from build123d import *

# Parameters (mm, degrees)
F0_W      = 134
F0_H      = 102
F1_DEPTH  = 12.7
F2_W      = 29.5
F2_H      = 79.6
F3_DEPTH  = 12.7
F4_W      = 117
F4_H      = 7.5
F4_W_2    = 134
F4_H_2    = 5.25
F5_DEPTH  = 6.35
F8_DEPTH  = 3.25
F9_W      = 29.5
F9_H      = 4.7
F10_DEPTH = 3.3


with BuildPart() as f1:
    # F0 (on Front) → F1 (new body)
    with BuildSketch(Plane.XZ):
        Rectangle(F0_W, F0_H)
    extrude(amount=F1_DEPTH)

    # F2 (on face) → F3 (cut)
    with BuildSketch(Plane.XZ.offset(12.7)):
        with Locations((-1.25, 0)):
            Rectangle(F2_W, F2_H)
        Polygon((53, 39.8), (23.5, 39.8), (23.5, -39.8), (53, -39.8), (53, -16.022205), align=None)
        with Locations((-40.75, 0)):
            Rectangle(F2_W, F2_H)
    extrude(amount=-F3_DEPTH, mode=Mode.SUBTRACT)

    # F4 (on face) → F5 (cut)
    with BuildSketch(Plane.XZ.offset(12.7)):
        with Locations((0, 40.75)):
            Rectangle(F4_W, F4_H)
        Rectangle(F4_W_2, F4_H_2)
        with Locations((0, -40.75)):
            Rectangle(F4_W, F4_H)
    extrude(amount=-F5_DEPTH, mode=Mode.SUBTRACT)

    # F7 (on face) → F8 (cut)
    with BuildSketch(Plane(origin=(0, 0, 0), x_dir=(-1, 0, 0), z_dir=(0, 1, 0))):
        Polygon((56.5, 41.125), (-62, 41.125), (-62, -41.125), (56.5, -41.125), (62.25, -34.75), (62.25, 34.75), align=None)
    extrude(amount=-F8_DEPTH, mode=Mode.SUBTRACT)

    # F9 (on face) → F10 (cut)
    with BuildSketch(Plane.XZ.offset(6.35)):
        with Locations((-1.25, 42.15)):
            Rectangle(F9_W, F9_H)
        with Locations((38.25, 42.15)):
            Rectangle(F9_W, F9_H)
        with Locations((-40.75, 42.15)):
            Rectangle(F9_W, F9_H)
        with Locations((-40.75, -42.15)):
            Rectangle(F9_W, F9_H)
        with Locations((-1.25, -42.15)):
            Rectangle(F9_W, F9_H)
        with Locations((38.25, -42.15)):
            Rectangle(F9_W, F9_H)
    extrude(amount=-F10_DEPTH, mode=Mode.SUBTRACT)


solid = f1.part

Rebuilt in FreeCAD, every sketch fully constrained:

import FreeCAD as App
import Part
import Sketcher
from FreeCAD import Vector
Q = App.Units.Quantity

doc = App.newDocument("Part")
body = doc.addObject("PartDesign::Body", "Body")

# Sketch on XZ plane
sketch1 = doc.addObject("Sketcher::SketchObject", "Sketch")
body.addObject(sketch1)
sketch1.AttachmentSupport = (doc.XZ_Plane, [""])
sketch1.MapMode = "FlatFace"
sketch1.addGeometry([
    Part.LineSegment(Vector(-67, 51, 0), Vector(-67, -51, 0)),
    Part.LineSegment(Vector(-67, -51, 0), Vector(67, -51, 0)),
    Part.LineSegment(Vector(67, -51, 0), Vector(67, 51, 0)),
    Part.LineSegment(Vector(67, 51, 0), Vector(-67, 51, 0)),
], False)
sketch1.addConstraint([
    Sketcher.Constraint("Coincident", 0, 2, 1, 1),
    Sketcher.Constraint("Coincident", 1, 2, 2, 1),
    Sketcher.Constraint("Coincident", 2, 2, 3, 1),
    Sketcher.Constraint("Coincident", 3, 2, 0, 1),
    Sketcher.Constraint("Vertical", 0),
    Sketcher.Constraint("Horizontal", 1),
    Sketcher.Constraint("Vertical", 2),
    Sketcher.Constraint("Horizontal", 3),
    Sketcher.Constraint("Symmetric", 0, 2, 2, 2, -1, 1),
    Sketcher.Constraint("DistanceX", 1, 1, 1, 2, Q("134 mm")),
    Sketcher.Constraint("DistanceY", 0, 2, 0, 1, Q("102 mm")),
])
pad1 = doc.addObject("PartDesign::Pad", "Pad")
body.addObject(pad1)
pad1.Profile = sketch1
pad1.Length = 12.7

# Sketch on XZ plane
sketch2 = doc.addObject("Sketcher::SketchObject", "Sketch001")
body.addObject(sketch2)
sketch2.AttachmentSupport = (doc.XZ_Plane, [""])
sketch2.MapMode = "FlatFace"
sketch2.AttachmentOffset = App.Placement(Vector(0, 0, 12.7), App.Rotation())
sketch2.addGeometry([
    Part.LineSegment(Vector(-16, 40, 0), Vector(-16, -40, 0)),  # 0
    Part.LineSegment(Vector(-16, -40, 0), Vector(14, -40, 0)),  # 1
    Part.LineSegment(Vector(14, -40, 0), Vector(14, 40, 0)),  # 2
    Part.LineSegment(Vector(14, 40, 0), Vector(-16, 40, 0)),  # 3
    Part.LineSegment(Vector(53, 40, 0), Vector(24, 40, 0)),  # 4
    Part.LineSegment(Vector(24, 40, 0), Vector(24, -40, 0)),  # 5
    Part.LineSegment(Vector(24, -40, 0), Vector(53, -40, 0)),  # 6
    Part.LineSegment(Vector(53, -40, 0), Vector(53, 40, 0)),  # 7
    Part.LineSegment(Vector(-56, 40, 0), Vector(-56, -40, 0)),  # 8
    Part.LineSegment(Vector(-56, -40, 0), Vector(-26, -40, 0)),  # 9
    Part.LineSegment(Vector(-26, -40, 0), Vector(-26, 40, 0)),  # 10
    Part.LineSegment(Vector(-26, 40, 0), Vector(-56, 40, 0)),  # 11
], False)
sketch2.addConstraint([
    Sketcher.Constraint("Coincident", 0, 2, 1, 1),
    Sketcher.Constraint("Coincident", 1, 2, 2, 1),
    Sketcher.Constraint("Coincident", 2, 2, 3, 1),
    Sketcher.Constraint("Coincident", 3, 2, 0, 1),
    Sketcher.Constraint("Coincident", 4, 2, 5, 1),
    Sketcher.Constraint("Coincident", 5, 2, 6, 1),
    Sketcher.Constraint("Coincident", 6, 2, 7, 1),
    Sketcher.Constraint("Coincident", 7, 2, 4, 1),
    Sketcher.Constraint("Coincident", 8, 2, 9, 1),
    Sketcher.Constraint("Coincident", 9, 2, 10, 1),
    Sketcher.Constraint("Coincident", 10, 2, 11, 1),
    Sketcher.Constraint("Coincident", 11, 2, 8, 1),
    Sketcher.Constraint("Vertical", 0),
    Sketcher.Constraint("Horizontal", 1),
    Sketcher.Constraint("Vertical", 2),
    Sketcher.Constraint("Horizontal", 3),
    Sketcher.Constraint("Horizontal", 4),
    Sketcher.Constraint("Vertical", 5),
    Sketcher.Constraint("Horizontal", 6),
    Sketcher.Constraint("Vertical", 7),
    Sketcher.Constraint("Vertical", 8),
    Sketcher.Constraint("Horizontal", 9),
    Sketcher.Constraint("Vertical", 10),
    Sketcher.Constraint("Horizontal", 11),
    Sketcher.Constraint("Horizontal", 3, 2, 4, 2),
    Sketcher.Constraint("Horizontal", 1, 2, 5, 2),
    Sketcher.Constraint("Horizontal", 6, 2, 8, 2),
    Sketcher.Constraint("Horizontal", 7, 2, 10, 2),
    Sketcher.Constraint("Equal", 3, 4),
    Sketcher.Constraint("Equal", 6, 9),
    Sketcher.Constraint("DistanceX", 1, 1, 1, 2, Q("29.5 mm")),
    Sketcher.Constraint("DistanceY", 0, 2, 0, 1, Q("79.6 mm")),
    Sketcher.Constraint("DistanceX", 0, 2, -1, 1, Q("16 mm")),
    Sketcher.Constraint("DistanceX", -1, 1, 6, 2, Q("53 mm")),
    Sketcher.Constraint("DistanceX", 9, 2, -1, 1, Q("26 mm")),
    Sketcher.Constraint("DistanceY", 0, 2, -1, 1, Q("39.8 mm")),
])
pocket1 = doc.addObject("PartDesign::Pocket", "Pocket")
body.addObject(pocket1)
pocket1.Profile = sketch2
pocket1.Length = 12.7

# Sketch on XZ plane
sketch3 = doc.addObject("Sketcher::SketchObject", "Sketch002")
body.addObject(sketch3)
sketch3.AttachmentSupport = (doc.XZ_Plane, [""])
sketch3.MapMode = "FlatFace"
sketch3.AttachmentOffset = App.Placement(Vector(0, 0, 12.7), App.Rotation())
sketch3.addGeometry([
    Part.LineSegment(Vector(-58, 44, 0), Vector(-58, 37, 0)),  # 0
    Part.LineSegment(Vector(-58, 37, 0), Vector(58, 37, 0)),  # 1
    Part.LineSegment(Vector(58, 37, 0), Vector(58, 44, 0)),  # 2
    Part.LineSegment(Vector(58, 44, 0), Vector(-58, 44, 0)),  # 3
    Part.LineSegment(Vector(-67, 3, 0), Vector(-67, -3, 0)),  # 4
    Part.LineSegment(Vector(-67, -3, 0), Vector(67, -3, 0)),  # 5
    Part.LineSegment(Vector(67, -3, 0), Vector(67, 3, 0)),  # 6
    Part.LineSegment(Vector(67, 3, 0), Vector(-67, 3, 0)),  # 7
    Part.LineSegment(Vector(-58, -37, 0), Vector(-58, -44, 0)),  # 8
    Part.LineSegment(Vector(-58, -44, 0), Vector(58, -44, 0)),  # 9
    Part.LineSegment(Vector(58, -44, 0), Vector(58, -37, 0)),  # 10
    Part.LineSegment(Vector(58, -37, 0), Vector(-58, -37, 0)),  # 11
], False)
sketch3.addConstraint([
    Sketcher.Constraint("Coincident", 0, 2, 1, 1),
    Sketcher.Constraint("Coincident", 1, 2, 2, 1),
    Sketcher.Constraint("Coincident", 2, 2, 3, 1),
    Sketcher.Constraint("Coincident", 3, 2, 0, 1),
    Sketcher.Constraint("Coincident", 4, 2, 5, 1),
    Sketcher.Constraint("Coincident", 5, 2, 6, 1),
    Sketcher.Constraint("Coincident", 6, 2, 7, 1),
    Sketcher.Constraint("Coincident", 7, 2, 4, 1),
    Sketcher.Constraint("Coincident", 8, 2, 9, 1),
    Sketcher.Constraint("Coincident", 9, 2, 10, 1),
    Sketcher.Constraint("Coincident", 10, 2, 11, 1),
    Sketcher.Constraint("Coincident", 11, 2, 8, 1),
    Sketcher.Constraint("Vertical", 0),
    Sketcher.Constraint("Horizontal", 1),
    Sketcher.Constraint("Vertical", 2),
    Sketcher.Constraint("Horizontal", 3),
    Sketcher.Constraint("Vertical", 4),
    Sketcher.Constraint("Horizontal", 5),
    Sketcher.Constraint("Vertical", 6),
    Sketcher.Constraint("Horizontal", 7),
    Sketcher.Constraint("Vertical", 8),
    Sketcher.Constraint("Horizontal", 9),
    Sketcher.Constraint("Vertical", 10),
    Sketcher.Constraint("Horizontal", 11),
    Sketcher.Constraint("Symmetric", 4, 2, 6, 2, -1, 1),
    Sketcher.Constraint("Symmetric", 2, 2, 8, 2, -1, 1),
    Sketcher.Constraint("Symmetric", 0, 2, 10, 2, -1, 1),
    Sketcher.Constraint("Vertical", 3, 2, 8, 2),
    Sketcher.Constraint("DistanceX", 1, 1, 1, 2, Q("117 mm")),
    Sketcher.Constraint("DistanceX", 5, 1, 5, 2, Q("134 mm")),
    Sketcher.Constraint("DistanceY", 0, 2, 0, 1, Q("7.5 mm")),
    Sketcher.Constraint("DistanceY", -1, 1, 0, 2, Q("37 mm")),
    Sketcher.Constraint("DistanceY", 4, 2, 4, 1, Q("5.25 mm")),
])
pocket2 = doc.addObject("PartDesign::Pocket", "Pocket001")
body.addObject(pocket2)
pocket2.Profile = sketch3
pocket2.Length = 6.35

# Sketch on XZ plane
sketch4 = doc.addObject("Sketcher::SketchObject", "Sketch003")
body.addObject(sketch4)
sketch4.AttachmentSupport = (doc.XZ_Plane, [""])
sketch4.MapMode = "FlatFace"
sketch4.addGeometry([
    Part.LineSegment(Vector(-56, 41, 0), Vector(62, 41, 0)),  # 0
    Part.LineSegment(Vector(62, 41, 0), Vector(62, -41, 0)),  # 1
    Part.LineSegment(Vector(62, -41, 0), Vector(-56, -41, 0)),  # 2
    Part.LineSegment(Vector(-56, -41, 0), Vector(-62, -35, 0)),  # 3
    Part.LineSegment(Vector(-62, -35, 0), Vector(-62, 35, 0)),  # 4
    Part.LineSegment(Vector(-62, 35, 0), Vector(-56, 41, 0)),  # 5
], False)
sketch4.addConstraint([
    Sketcher.Constraint("Coincident", 0, 2, 1, 1),
    Sketcher.Constraint("Coincident", 1, 2, 2, 1),
    Sketcher.Constraint("Coincident", 2, 2, 3, 1),
    Sketcher.Constraint("Coincident", 3, 2, 4, 1),
    Sketcher.Constraint("Coincident", 4, 2, 5, 1),
    Sketcher.Constraint("Coincident", 5, 2, 0, 1),
    Sketcher.Constraint("Horizontal", 0),
    Sketcher.Constraint("Vertical", 1),
    Sketcher.Constraint("Horizontal", 2),
    Sketcher.Constraint("Vertical", 4),
    Sketcher.Constraint("Symmetric", 2, 2, 5, 2, -1),
    Sketcher.Constraint("Equal", 3, 5),
    Sketcher.Constraint("DistanceX", 0, 1, 0, 2, Q("118.5 mm")),
    Sketcher.Constraint("DistanceY", 4, 1, 4, 2, Q("69.5 mm")),
    Sketcher.Constraint("DistanceX", -1, 1, 0, 2, Q("62 mm")),
    Sketcher.Constraint("DistanceY", 1, 2, 1, 1, Q("82.25 mm")),
    Sketcher.Constraint("DistanceX", 3, 2, -1, 1, Q("62.25 mm")),
])
pocket3 = doc.addObject("PartDesign::Pocket", "Pocket002")
body.addObject(pocket3)
pocket3.Profile = sketch4
pocket3.Length = 3.25
pocket3.Reversed = True

# Sketch on XZ plane
sketch5 = doc.addObject("Sketcher::SketchObject", "Sketch004")
body.addObject(sketch5)
sketch5.AttachmentSupport = (doc.XZ_Plane, [""])
sketch5.MapMode = "FlatFace"
sketch5.AttachmentOffset = App.Placement(Vector(0, 0, 6.35), App.Rotation())
sketch5.addGeometry([
    Part.LineSegment(Vector(-16, 44.5, 0), Vector(-16, 39.8, 0)),  # 0
    Part.LineSegment(Vector(-16, 39.8, 0), Vector(13.5, 39.8, 0)),  # 1
    Part.LineSegment(Vector(13.5, 39.8, 0), Vector(13.5, 44.5, 0)),  # 2
    Part.LineSegment(Vector(13.5, 44.5, 0), Vector(-16, 44.5, 0)),  # 3
    Part.LineSegment(Vector(23.5, 44.5, 0), Vector(23.5, 39.8, 0)),  # 4
    Part.LineSegment(Vector(23.5, 39.8, 0), Vector(53, 39.8, 0)),  # 5
    Part.LineSegment(Vector(53, 39.8, 0), Vector(53, 44.5, 0)),  # 6
    Part.LineSegment(Vector(53, 44.5, 0), Vector(23.5, 44.5, 0)),  # 7
    Part.LineSegment(Vector(-55.5, 44.5, 0), Vector(-55.5, 39.8, 0)),  # 8
    Part.LineSegment(Vector(-55.5, 39.8, 0), Vector(-26, 39.8, 0)),  # 9
    Part.LineSegment(Vector(-26, 39.8, 0), Vector(-26, 44.5, 0)),  # 10
    Part.LineSegment(Vector(-26, 44.5, 0), Vector(-55.5, 44.5, 0)),  # 11
    Part.LineSegment(Vector(-55.5, -39.8, 0), Vector(-55.5, -44.5, 0)),  # 12
    Part.LineSegment(Vector(-55.5, -44.5, 0), Vector(-26, -44.5, 0)),  # 13
    Part.LineSegment(Vector(-26, -44.5, 0), Vector(-26, -39.8, 0)),  # 14
    Part.LineSegment(Vector(-26, -39.8, 0), Vector(-55.5, -39.8, 0)),  # 15
    Part.LineSegment(Vector(-16, -39.8, 0), Vector(-16, -44.5, 0)),  # 16
    Part.LineSegment(Vector(-16, -44.5, 0), Vector(13.5, -44.5, 0)),  # 17
    Part.LineSegment(Vector(13.5, -44.5, 0), Vector(13.5, -39.8, 0)),  # 18
    Part.LineSegment(Vector(13.5, -39.8, 0), Vector(-16, -39.8, 0)),  # 19
    Part.LineSegment(Vector(23.5, -39.8, 0), Vector(23.5, -44.5, 0)),  # 20
    Part.LineSegment(Vector(23.5, -44.5, 0), Vector(53, -44.5, 0)),  # 21
    Part.LineSegment(Vector(53, -44.5, 0), Vector(53, -39.8, 0)),  # 22
    Part.LineSegment(Vector(53, -39.8, 0), Vector(23.5, -39.8, 0)),  # 23
], False)
sketch5.addConstraint([
    Sketcher.Constraint("Coincident", 0, 2, 1, 1),
    Sketcher.Constraint("Coincident", 1, 2, 2, 1),
    Sketcher.Constraint("Coincident", 2, 2, 3, 1),
    Sketcher.Constraint("Coincident", 3, 2, 0, 1),
    Sketcher.Constraint("Coincident", 4, 2, 5, 1),
    Sketcher.Constraint("Coincident", 5, 2, 6, 1),
    Sketcher.Constraint("Coincident", 6, 2, 7, 1),
    Sketcher.Constraint("Coincident", 7, 2, 4, 1),
    Sketcher.Constraint("Coincident", 8, 2, 9, 1),
    Sketcher.Constraint("Coincident", 9, 2, 10, 1),
    Sketcher.Constraint("Coincident", 10, 2, 11, 1),
    Sketcher.Constraint("Coincident", 11, 2, 8, 1),
    Sketcher.Constraint("Coincident", 12, 2, 13, 1),
    Sketcher.Constraint("Coincident", 13, 2, 14, 1),
    Sketcher.Constraint("Coincident", 14, 2, 15, 1),
    Sketcher.Constraint("Coincident", 15, 2, 12, 1),
    Sketcher.Constraint("Coincident", 16, 2, 17, 1),
    Sketcher.Constraint("Coincident", 17, 2, 18, 1),
    Sketcher.Constraint("Coincident", 18, 2, 19, 1),
    Sketcher.Constraint("Coincident", 19, 2, 16, 1),
    Sketcher.Constraint("Coincident", 20, 2, 21, 1),
    Sketcher.Constraint("Coincident", 21, 2, 22, 1),
    Sketcher.Constraint("Coincident", 22, 2, 23, 1),
    Sketcher.Constraint("Coincident", 23, 2, 20, 1),
    Sketcher.Constraint("Vertical", 0),
    Sketcher.Constraint("Horizontal", 1),
    Sketcher.Constraint("Vertical", 2),
    Sketcher.Constraint("Horizontal", 3),
    Sketcher.Constraint("Vertical", 4),
    Sketcher.Constraint("Horizontal", 5),
    Sketcher.Constraint("Vertical", 6),
    Sketcher.Constraint("Horizontal", 7),
    Sketcher.Constraint("Vertical", 8),
    Sketcher.Constraint("Horizontal", 9),
    Sketcher.Constraint("Vertical", 10),
    Sketcher.Constraint("Horizontal", 11),
    Sketcher.Constraint("Vertical", 12),
    Sketcher.Constraint("Horizontal", 13),
    Sketcher.Constraint("Vertical", 14),
    Sketcher.Constraint("Horizontal", 15),
    Sketcher.Constraint("Vertical", 16),
    Sketcher.Constraint("Horizontal", 17),
    Sketcher.Constraint("Vertical", 18),
    Sketcher.Constraint("Horizontal", 19),
    Sketcher.Constraint("Vertical", 20),
    Sketcher.Constraint("Horizontal", 21),
    Sketcher.Constraint("Vertical", 22),
    Sketcher.Constraint("Horizontal", 23),
    Sketcher.Constraint("Symmetric", 11, 2, 12, 2, -1),
    Sketcher.Constraint("Symmetric", 9, 2, 14, 2, -1),
    Sketcher.Constraint("Symmetric", 3, 2, 16, 2, -1),
    Sketcher.Constraint("Symmetric", 1, 2, 18, 2, -1),
    Sketcher.Constraint("Symmetric", 7, 2, 20, 2, -1),
    Sketcher.Constraint("Symmetric", 5, 2, 22, 2, -1),
    Sketcher.Constraint("Horizontal", 1, 2, 4, 2),
    Sketcher.Constraint("Horizontal", 3, 2, 6, 2),
    Sketcher.Constraint("Horizontal", 5, 2, 8, 2),
    Sketcher.Constraint("Horizontal", 7, 2, 10, 2),
    Sketcher.Constraint("Equal", 3, 5),
    Sketcher.Constraint("Equal", 7, 9),
    Sketcher.Constraint("DistanceX", 1, 1, 1, 2, Q("29.5 mm")),
    Sketcher.Constraint("DistanceY", 0, 2, 0, 1, Q("4.7 mm")),
    Sketcher.Constraint("DistanceX", 0, 2, -1, 1, Q("16 mm")),
    Sketcher.Constraint("DistanceX", -1, 1, 5, 2, Q("53 mm")),
    Sketcher.Constraint("DistanceX", 9, 2, -1, 1, Q("26 mm")),
    Sketcher.Constraint("DistanceY", 12, 2, 11, 2, Q("89 mm")),
])
pocket4 = doc.addObject("PartDesign::Pocket", "Pocket003")
body.addObject(pocket4)
pocket4.Profile = sketch5
pocket4.Length = 3.3

doc.recompute()
